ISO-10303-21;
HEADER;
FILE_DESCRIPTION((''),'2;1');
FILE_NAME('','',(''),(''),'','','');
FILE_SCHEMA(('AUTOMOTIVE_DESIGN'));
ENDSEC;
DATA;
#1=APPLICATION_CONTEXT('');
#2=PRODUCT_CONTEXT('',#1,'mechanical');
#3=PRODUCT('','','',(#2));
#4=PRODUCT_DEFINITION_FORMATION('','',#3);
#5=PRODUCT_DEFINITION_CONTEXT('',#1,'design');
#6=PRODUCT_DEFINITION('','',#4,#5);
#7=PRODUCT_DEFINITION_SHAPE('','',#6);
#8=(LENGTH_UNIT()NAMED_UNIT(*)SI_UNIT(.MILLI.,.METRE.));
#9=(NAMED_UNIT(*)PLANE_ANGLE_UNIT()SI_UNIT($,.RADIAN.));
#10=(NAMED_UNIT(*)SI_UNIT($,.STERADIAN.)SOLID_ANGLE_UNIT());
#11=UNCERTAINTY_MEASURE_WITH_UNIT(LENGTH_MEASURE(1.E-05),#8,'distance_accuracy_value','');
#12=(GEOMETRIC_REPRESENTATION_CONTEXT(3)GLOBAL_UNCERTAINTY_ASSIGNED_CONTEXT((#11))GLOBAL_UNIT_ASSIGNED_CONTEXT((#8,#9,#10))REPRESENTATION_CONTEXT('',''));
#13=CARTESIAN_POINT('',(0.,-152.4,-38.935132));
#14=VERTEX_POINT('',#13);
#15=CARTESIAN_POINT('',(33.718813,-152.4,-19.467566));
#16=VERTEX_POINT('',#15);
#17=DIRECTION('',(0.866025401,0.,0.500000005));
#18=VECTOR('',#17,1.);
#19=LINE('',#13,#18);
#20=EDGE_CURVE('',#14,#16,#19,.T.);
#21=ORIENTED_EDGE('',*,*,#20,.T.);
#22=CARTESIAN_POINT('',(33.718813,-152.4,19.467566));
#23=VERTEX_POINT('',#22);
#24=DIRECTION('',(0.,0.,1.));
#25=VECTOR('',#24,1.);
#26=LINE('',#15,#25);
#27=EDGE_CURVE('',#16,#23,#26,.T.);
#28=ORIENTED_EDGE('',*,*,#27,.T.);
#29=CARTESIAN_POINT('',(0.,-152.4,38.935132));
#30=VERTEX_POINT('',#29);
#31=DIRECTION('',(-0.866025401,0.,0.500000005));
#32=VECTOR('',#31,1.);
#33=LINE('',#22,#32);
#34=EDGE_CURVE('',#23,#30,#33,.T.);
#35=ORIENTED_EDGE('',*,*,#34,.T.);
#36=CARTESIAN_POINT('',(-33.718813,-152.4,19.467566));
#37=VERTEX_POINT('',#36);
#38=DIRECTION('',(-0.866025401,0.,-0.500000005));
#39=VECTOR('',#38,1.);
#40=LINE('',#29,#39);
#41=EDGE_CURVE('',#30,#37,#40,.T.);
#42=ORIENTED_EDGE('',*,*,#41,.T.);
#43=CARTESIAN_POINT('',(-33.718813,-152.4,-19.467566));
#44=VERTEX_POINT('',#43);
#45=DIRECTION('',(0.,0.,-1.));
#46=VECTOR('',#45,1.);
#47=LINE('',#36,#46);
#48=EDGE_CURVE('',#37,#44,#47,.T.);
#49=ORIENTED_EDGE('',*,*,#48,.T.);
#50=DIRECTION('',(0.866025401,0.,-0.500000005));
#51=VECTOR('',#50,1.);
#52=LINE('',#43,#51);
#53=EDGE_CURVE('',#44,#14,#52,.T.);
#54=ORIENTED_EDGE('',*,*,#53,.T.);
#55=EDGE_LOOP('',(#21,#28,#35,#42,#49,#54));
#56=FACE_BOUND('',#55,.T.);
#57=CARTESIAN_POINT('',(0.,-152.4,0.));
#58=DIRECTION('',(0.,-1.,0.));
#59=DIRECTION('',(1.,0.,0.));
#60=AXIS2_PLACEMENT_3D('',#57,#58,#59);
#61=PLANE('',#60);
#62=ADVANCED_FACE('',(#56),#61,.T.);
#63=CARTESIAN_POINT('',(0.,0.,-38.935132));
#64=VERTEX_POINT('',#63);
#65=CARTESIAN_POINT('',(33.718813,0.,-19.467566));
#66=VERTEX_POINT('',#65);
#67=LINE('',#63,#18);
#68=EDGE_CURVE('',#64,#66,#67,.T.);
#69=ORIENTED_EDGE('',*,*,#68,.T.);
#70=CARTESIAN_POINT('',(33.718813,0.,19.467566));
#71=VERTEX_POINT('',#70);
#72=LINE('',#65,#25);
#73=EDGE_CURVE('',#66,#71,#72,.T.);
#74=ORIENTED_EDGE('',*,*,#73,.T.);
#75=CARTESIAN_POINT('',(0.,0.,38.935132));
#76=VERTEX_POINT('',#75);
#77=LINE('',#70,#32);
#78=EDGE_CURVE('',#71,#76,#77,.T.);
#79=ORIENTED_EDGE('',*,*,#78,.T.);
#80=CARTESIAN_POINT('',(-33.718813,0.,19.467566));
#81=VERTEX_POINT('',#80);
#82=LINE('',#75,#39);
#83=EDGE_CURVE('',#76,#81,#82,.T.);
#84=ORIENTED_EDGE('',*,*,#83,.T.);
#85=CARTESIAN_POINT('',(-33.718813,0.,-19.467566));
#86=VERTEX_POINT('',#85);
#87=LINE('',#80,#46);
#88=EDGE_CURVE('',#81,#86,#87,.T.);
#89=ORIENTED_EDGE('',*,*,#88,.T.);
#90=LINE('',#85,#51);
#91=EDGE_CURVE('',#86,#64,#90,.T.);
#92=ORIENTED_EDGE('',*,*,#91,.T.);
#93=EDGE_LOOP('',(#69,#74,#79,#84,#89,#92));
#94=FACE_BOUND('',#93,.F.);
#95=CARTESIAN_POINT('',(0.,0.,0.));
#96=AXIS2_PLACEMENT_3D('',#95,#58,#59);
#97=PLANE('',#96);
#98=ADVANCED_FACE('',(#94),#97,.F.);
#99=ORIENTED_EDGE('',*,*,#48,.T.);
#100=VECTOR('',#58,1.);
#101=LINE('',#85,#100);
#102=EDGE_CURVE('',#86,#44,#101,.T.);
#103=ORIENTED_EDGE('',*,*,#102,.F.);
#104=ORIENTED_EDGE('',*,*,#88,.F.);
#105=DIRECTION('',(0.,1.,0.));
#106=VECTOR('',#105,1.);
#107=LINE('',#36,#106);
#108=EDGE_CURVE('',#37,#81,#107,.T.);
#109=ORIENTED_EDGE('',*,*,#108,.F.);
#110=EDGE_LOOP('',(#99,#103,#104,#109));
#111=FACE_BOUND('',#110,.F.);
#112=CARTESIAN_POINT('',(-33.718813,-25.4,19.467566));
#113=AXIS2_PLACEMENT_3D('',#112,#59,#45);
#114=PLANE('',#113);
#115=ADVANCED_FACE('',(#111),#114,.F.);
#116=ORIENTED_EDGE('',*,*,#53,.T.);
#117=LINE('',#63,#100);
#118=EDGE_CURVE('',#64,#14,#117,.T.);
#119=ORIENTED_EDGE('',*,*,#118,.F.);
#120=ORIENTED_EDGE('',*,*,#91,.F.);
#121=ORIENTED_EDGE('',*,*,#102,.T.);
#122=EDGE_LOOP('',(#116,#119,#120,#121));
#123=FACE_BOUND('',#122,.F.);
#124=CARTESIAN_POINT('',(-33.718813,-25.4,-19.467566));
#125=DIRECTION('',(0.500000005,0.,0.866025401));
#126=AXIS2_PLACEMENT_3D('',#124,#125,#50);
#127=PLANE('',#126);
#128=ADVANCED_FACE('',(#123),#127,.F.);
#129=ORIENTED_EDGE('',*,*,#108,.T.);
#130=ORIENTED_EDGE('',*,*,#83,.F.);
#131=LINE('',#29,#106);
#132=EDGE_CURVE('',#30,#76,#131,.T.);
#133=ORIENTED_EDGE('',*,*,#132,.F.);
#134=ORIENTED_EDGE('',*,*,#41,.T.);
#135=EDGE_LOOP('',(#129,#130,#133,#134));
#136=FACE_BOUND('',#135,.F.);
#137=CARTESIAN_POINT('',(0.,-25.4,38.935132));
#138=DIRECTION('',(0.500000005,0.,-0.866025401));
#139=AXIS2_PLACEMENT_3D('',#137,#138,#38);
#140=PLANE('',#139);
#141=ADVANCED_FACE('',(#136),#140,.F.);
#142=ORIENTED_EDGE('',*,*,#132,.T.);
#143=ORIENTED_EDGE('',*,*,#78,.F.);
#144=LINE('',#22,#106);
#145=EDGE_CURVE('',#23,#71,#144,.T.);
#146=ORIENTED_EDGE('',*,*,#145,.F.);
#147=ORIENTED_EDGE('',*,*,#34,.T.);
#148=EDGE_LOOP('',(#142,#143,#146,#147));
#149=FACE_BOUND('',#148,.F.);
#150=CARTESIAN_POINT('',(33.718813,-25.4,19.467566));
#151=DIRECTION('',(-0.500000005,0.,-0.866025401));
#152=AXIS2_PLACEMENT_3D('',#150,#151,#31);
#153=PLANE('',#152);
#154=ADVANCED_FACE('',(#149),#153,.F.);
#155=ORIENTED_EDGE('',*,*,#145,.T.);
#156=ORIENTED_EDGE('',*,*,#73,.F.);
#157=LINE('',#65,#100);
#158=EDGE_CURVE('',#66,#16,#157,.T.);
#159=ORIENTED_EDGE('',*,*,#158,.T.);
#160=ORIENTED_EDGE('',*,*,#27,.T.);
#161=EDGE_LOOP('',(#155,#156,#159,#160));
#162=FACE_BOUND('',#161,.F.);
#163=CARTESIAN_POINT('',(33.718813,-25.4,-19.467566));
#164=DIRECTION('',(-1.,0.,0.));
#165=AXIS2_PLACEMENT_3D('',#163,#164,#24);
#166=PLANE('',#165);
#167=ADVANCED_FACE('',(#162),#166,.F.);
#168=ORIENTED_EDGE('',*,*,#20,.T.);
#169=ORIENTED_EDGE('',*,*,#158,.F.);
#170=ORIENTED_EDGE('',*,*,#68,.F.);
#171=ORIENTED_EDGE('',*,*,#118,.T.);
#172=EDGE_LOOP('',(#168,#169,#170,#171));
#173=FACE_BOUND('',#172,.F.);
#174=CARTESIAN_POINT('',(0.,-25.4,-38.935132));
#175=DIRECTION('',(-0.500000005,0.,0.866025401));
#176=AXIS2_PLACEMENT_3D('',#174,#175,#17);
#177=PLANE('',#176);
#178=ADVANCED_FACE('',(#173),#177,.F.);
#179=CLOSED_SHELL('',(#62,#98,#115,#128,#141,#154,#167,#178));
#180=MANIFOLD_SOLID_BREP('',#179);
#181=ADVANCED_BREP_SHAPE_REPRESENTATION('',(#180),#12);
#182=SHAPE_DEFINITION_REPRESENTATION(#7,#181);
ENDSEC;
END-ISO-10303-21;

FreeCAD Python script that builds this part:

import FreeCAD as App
import Part
import Sketcher
Q = App.Units.Quantity

doc = App.newDocument("Part")
body = doc.addObject("PartDesign::Body", "Body")

sketch1 = doc.addObject("Sketcher::SketchObject", "Sketch")
body.addObject(sketch1)
sketch1.AttachmentSupport = (doc.XZ_Plane, [""])
sketch1.MapMode = "FlatFace"
sketch1.addGeometry(Part.LineSegment(App.Vector(-34, 19, 0), App.Vector(-34, -19, 0)), False)
sketch1.addGeometry(Part.LineSegment(App.Vector(-34, -19, 0), App.Vector(0, -39, 0)), False)
sketch1.addGeometry(Part.LineSegment(App.Vector(0, -39, 0), App.Vector(34, -19, 0)), False)
sketch1.addGeometry(Part.LineSegment(App.Vector(34, -19, 0), App.Vector(34, 19, 0)), False)
sketch1.addGeometry(Part.LineSegment(App.Vector(34, 19, 0), App.Vector(0, 39, 0)), False)
sketch1.addGeometry(Part.LineSegment(App.Vector(0, 39, 0), App.Vector(-34, 19, 0)), False)
sketch1.addConstraint(Sketcher.Constraint("Coincident", 0, 2, 1, 1))
sketch1.addConstraint(Sketcher.Constraint("Coincident", 1, 2, 2, 1))
sketch1.addConstraint(Sketcher.Constraint("Coincident", 2, 2, 3, 1))
sketch1.addConstraint(Sketcher.Constraint("Coincident", 3, 2, 4, 1))
sketch1.addConstraint(Sketcher.Constraint("Coincident", 4, 2, 5, 1))
sketch1.addConstraint(Sketcher.Constraint("Coincident", 5, 2, 0, 1))
sketch1.addConstraint(Sketcher.Constraint("Vertical", 0))
sketch1.addConstraint(Sketcher.Constraint("Vertical", 3))
sketch1.addConstraint(Sketcher.Constraint("Symmetric", 0, 2, 3, 2, -1, 1))
sketch1.addConstraint(Sketcher.Constraint("Symmetric", 1, 2, 4, 2, -1, 1))
sketch1.addConstraint(Sketcher.Constraint("PointOnObject", 1, 2, -2))
sketch1.addConstraint(Sketcher.Constraint("Parallel", 2, 5))
sketch1.addConstraint(Sketcher.Constraint("Horizontal", 0, 2, 2, 2))
sketch1.addConstraint(Sketcher.Constraint("Angle", 1, Q("-30 deg")))
sketch1.addConstraint(Sketcher.Constraint("Distance", 1, 38.935132))
sketch1.addConstraint(Sketcher.Constraint("DistanceY", 0, 2, 0, 1, 38.935132))
pad1 = doc.addObject("PartDesign::Pad", "Pad")
body.addObject(pad1)
pad1.Profile = sketch1
pad1.Length = Q("1 in")

sketch2 = doc.addObject("Sketcher::SketchObject", "Sketch001")
body.addObject(sketch2)
sketch2.AttachmentSupport = (doc.XZ_Plane, [""])
sketch2.MapMode = "FlatFace"
sketch2.AttachmentOffset = App.Placement(App.Vector(0, 0, 1 * 25.4), App.Rotation())
sketch2.addGeometry(Part.LineSegment(App.Vector(-34, 19, 0), App.Vector(-34, -19, 0)), False)
sketch2.addGeometry(Part.LineSegment(App.Vector(-34, -19, 0), App.Vector(0, -39, 0)), False)
sketch2.addGeometry(Part.LineSegment(App.Vector(0, -39, 0), App.Vector(34, -19, 0)), False)
sketch2.addGeometry(Part.LineSegment(App.Vector(34, -19, 0), App.Vector(34, 19, 0)), False)
sketch2.addGeometry(Part.LineSegment(App.Vector(34, 19, 0), App.Vector(0, 39, 0)), False)
sketch2.addGeometry(Part.LineSegment(App.Vector(0, 39, 0), App.Vector(-34, 19, 0)), False)
sketch2.addConstraint(Sketcher.Constraint("Coincident", 0, 2, 1, 1))
sketch2.addConstraint(Sketcher.Constraint("Coincident", 1, 2, 2, 1))
sketch2.addConstraint(Sketcher.Constraint("Coincident", 2, 2, 3, 1))
sketch2.addConstraint(Sketcher.Constraint("Coincident", 3, 2, 4, 1))
sketch2.addConstraint(Sketcher.Constraint("Coincident", 4, 2, 5, 1))
sketch2.addConstraint(Sketcher.Constraint("Coincident", 5, 2, 0, 1))
sketch2.addConstraint(Sketcher.Constraint("Vertical", 0))
sketch2.addConstraint(Sketcher.Constraint("Vertical", 3))
sketch2.addConstraint(Sketcher.Constraint("Symmetric", 0, 2, 3, 2, -1, 1))
sketch2.addConstraint(Sketcher.Constraint("Symmetric", 1, 2, 4, 2, -1, 1))
sketch2.addConstraint(Sketcher.Constraint("PointOnObject", 1, 2, -2))
sketch2.addConstraint(Sketcher.Constraint("Parallel", 2, 5))
sketch2.addConstraint(Sketcher.Constraint("Horizontal", 0, 2, 2, 2))
sketch2.addConstraint(Sketcher.Constraint("Angle", 1, Q("-30 deg")))
sketch2.addConstraint(Sketcher.Constraint("Distance", 1, 38.935132))
sketch2.addConstraint(Sketcher.Constraint("DistanceY", 0, 2, 0, 1, 38.935132))
pad2 = doc.addObject("PartDesign::Pad", "Pad001")
body.addObject(pad2)
pad2.Profile = sketch2
pad2.Length = Q("5 in")

doc.recompute()
